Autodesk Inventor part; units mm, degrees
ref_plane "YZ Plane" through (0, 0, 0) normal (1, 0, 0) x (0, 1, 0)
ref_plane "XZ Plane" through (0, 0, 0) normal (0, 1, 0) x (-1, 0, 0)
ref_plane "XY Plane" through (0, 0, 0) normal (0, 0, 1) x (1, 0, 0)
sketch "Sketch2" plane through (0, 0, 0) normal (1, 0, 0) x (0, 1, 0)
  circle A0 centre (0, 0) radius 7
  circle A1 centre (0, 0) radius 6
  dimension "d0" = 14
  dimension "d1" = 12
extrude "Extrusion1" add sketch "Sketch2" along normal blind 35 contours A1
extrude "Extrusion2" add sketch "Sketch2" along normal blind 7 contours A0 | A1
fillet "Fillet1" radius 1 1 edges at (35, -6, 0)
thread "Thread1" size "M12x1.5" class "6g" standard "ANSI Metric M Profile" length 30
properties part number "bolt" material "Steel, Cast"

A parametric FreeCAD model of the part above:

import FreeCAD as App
import Part
import Sketcher
from FreeCAD import Vector


def edges_at(feature, points):
    """Names of the edges that pass closest to the given points."""
    edges = feature.Shape.Edges
    near = lambda p: min(range(len(edges)), key=lambda i: edges[i].distToShape(Part.Vertex(*p))[0])
    return sorted({f"Edge{near(p) + 1}" for p in points})

doc = App.newDocument("Part")
body = doc.addObject("PartDesign::Body", "Body")

# Sketch on YZ plane
sketch1 = body.newObject("Sketcher::SketchObject", "Sketch")
sketch1.AttachmentSupport = (doc.getObject("YZ_Plane"), [""])
sketch1.MapMode = "FlatFace"
sketch1.addGeometry(Part.Circle(Vector(0, 0, 0), Vector(0, 0, 1), 6), False)
sketch1.addConstraint([
    Sketcher.Constraint("Coincident", 0, 3, -1, 1),
    Sketcher.Constraint("Diameter", 0, 12.0),
])
pad1 = body.newObject("PartDesign::Pad", "Pad")
pad1.Profile = sketch1
pad1.Length = 35

# Sketch on YZ plane
sketch2 = body.newObject("Sketcher::SketchObject", "Sketch001")
sketch2.AttachmentSupport = (doc.getObject("YZ_Plane"), [""])
sketch2.MapMode = "FlatFace"
sketch2.addGeometry(Part.Circle(Vector(0, 0, 0), Vector(0, 0, 1), 7), False)
sketch2.addConstraint([
    Sketcher.Constraint("Coincident", 0, 3, -1, 1),
    Sketcher.Constraint("Diameter", 0, 14.0),
])
pad2 = body.newObject("PartDesign::Pad", "Pad001")
pad2.Profile = sketch2
pad2.Length = 7
doc.recompute()

fillet = body.newObject("PartDesign::Fillet", "Fillet")
fillet.Base = (pad2, edges_at(pad2, [(35, -6, 0)]))
fillet.Radius = 1

doc.recompute()
